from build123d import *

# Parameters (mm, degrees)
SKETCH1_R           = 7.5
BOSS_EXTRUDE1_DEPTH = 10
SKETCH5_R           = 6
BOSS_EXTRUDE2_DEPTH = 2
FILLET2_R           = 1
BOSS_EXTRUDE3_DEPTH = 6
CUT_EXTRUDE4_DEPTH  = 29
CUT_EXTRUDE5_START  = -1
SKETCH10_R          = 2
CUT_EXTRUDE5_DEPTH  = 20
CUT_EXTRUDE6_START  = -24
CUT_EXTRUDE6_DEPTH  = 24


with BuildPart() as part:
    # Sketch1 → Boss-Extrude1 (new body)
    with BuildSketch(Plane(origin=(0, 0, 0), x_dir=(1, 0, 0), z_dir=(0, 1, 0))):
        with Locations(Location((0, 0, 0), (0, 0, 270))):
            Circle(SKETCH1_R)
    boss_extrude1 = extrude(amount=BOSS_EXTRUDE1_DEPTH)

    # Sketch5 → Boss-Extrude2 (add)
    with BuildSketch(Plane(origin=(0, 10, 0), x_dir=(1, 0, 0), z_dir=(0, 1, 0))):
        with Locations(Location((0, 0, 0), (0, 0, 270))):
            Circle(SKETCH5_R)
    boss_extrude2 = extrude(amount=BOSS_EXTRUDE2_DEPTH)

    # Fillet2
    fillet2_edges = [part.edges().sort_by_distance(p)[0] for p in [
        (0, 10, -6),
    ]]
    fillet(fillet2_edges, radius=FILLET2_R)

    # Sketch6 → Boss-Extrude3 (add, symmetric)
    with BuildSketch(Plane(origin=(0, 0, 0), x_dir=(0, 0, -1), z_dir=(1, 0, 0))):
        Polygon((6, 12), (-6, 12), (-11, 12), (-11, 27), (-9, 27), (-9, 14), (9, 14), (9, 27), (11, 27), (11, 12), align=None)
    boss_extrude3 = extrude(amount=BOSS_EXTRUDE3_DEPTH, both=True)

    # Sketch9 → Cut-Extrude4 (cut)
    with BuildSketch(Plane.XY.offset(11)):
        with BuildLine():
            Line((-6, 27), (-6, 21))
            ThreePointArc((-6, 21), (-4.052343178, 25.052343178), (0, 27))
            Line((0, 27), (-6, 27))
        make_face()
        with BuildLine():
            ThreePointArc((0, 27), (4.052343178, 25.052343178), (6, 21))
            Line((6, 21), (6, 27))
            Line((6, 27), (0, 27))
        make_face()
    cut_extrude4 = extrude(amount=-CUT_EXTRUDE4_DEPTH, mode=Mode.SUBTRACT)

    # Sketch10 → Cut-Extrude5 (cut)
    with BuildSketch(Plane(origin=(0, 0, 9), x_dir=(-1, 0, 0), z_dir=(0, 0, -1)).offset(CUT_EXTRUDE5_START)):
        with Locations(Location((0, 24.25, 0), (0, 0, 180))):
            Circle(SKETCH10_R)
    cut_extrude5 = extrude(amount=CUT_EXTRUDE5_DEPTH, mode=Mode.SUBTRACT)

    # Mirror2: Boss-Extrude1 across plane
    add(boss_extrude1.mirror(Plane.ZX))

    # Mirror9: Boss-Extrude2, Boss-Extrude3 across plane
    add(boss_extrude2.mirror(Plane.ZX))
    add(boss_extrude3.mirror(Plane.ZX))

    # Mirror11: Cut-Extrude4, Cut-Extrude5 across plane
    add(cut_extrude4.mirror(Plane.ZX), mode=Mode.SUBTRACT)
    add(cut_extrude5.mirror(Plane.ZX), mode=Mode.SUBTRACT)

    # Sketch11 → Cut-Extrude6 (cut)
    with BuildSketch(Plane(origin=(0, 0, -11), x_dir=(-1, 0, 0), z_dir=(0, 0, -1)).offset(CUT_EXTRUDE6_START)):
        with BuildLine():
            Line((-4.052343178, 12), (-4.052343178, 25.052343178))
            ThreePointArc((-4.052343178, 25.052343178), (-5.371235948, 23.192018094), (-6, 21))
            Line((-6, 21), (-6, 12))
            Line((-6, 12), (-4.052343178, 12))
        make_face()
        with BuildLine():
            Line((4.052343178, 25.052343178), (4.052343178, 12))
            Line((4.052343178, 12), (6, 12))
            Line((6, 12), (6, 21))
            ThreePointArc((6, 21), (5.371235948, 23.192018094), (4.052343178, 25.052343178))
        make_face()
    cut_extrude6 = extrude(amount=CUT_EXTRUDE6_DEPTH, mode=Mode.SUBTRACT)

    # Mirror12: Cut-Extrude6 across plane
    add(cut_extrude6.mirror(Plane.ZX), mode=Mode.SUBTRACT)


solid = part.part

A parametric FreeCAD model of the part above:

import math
import FreeCAD as App
import Part
import Sketcher
Q = App.Units.Quantity


def edges_at(feature, points):
    """Names of the edges that pass closest to the given points."""
    edges = feature.Shape.Edges
    near = lambda p: min(range(len(edges)), key=lambda i: edges[i].distToShape(Part.Vertex(*p))[0])
    return sorted({f"Edge{near(p) + 1}" for p in points})

doc = App.newDocument("Part")
body = doc.addObject("PartDesign::Body", "Body")

sketch1 = doc.addObject("Sketcher::SketchObject", "Sketch")
body.addObject(sketch1)
sketch1.AttachmentSupport = (doc.XZ_Plane, [""])
sketch1.MapMode = "FlatFace"
sketch1.addGeometry(Part.Circle(App.Vector(0, 0, 0), App.Vector(0, 0, 1), 8), False)
sketch1.addConstraint([
    Sketcher.Constraint("Coincident", 0, 3, -1, 1),
    Sketcher.Constraint("Diameter", 0, Q("15 mm")),
])
pad1 = doc.addObject("PartDesign::Pad", "Pad")
body.addObject(pad1)
pad1.Profile = sketch1
pad1.Length = 10
pad1.Reversed = True

sketch2 = doc.addObject("Sketcher::SketchObject", "Sketch001")
body.addObject(sketch2)
sketch2.AttachmentSupport = (doc.XZ_Plane, [""])
sketch2.MapMode = "FlatFace"
sketch2.AttachmentOffset = App.Placement(App.Vector(0, 0, -10), App.Rotation())
sketch2.addGeometry(Part.Circle(App.Vector(0, 0, 0), App.Vector(0, 0, 1), 6), False)
sketch2.addConstraint([
    Sketcher.Constraint("Coincident", 0, 3, -1, 1),
    Sketcher.Constraint("Diameter", 0, Q("12 mm")),
])
pad2 = doc.addObject("PartDesign::Pad", "Pad001")
body.addObject(pad2)
pad2.Profile = sketch2
pad2.Length = 2
pad2.Reversed = True
doc.recompute()

fillet = doc.addObject("PartDesign::Fillet", "Fillet")
body.addObject(fillet)
fillet.Base = (pad2, edges_at(pad2, [(0, 10, -6)]))
fillet.Radius = 1

sketch3 = doc.addObject("Sketcher::SketchObject", "Sketch002")
body.addObject(sketch3)
sketch3.AttachmentSupport = (doc.YZ_Plane, [""])
sketch3.MapMode = "FlatFace"
sketch3.addGeometry([
    Part.LineSegment(App.Vector(12, 11, 0), App.Vector(12, -11, 0)),
    Part.LineSegment(App.Vector(12, -11, 0), App.Vector(27, -11, 0)),
    Part.LineSegment(App.Vector(27, -11, 0), App.Vector(27, -9, 0)),
    Part.LineSegment(App.Vector(27, -9, 0), App.Vector(14, -9, 0)),
    Part.LineSegment(App.Vector(14, -9, 0), App.Vector(14, 9, 0)),
    Part.LineSegment(App.Vector(14, 9, 0), App.Vector(27, 9, 0)),
    Part.LineSegment(App.Vector(27, 9, 0), App.Vector(27, 11, 0)),
    Part.LineSegment(App.Vector(27, 11, 0), App.Vector(12, 11, 0)),
], False)
sketch3.addConstraint([
    Sketcher.Constraint("Coincident", 0, 2, 1, 1),
    Sketcher.Constraint("Coincident", 1, 2, 2, 1),
    Sketcher.Constraint("Coincident", 2, 2, 3, 1),
    Sketcher.Constraint("Coincident", 3, 2, 4, 1),
    Sketcher.Constraint("Coincident", 4, 2, 5, 1),
    Sketcher.Constraint("Coincident", 5, 2, 6, 1),
    Sketcher.Constraint("Coincident", 6, 2, 7, 1),
    Sketcher.Constraint("Coincident", 7, 2, 0, 1),
    Sketcher.Constraint("Vertical", 0),
    Sketcher.Constraint("Horizontal", 1),
    Sketcher.Constraint("Vertical", 2),
    Sketcher.Constraint("Horizontal", 3),
    Sketcher.Constraint("Vertical", 4),
    Sketcher.Constraint("Horizontal", 5),
    Sketcher.Constraint("Vertical", 6),
    Sketcher.Constraint("Horizontal", 7),
    Sketcher.Constraint("Symmetric", 2, 2, 5, 2, -1),
    Sketcher.Constraint("Equal", 2, 6),
    Sketcher.Constraint("DistanceX", 1, 1, 1, 2, Q("15 mm")),
    Sketcher.Constraint("DistanceX", 3, 2, 3, 1, Q("13 mm")),
    Sketcher.Constraint("DistanceY", 0, 2, 0, 1, Q("22 mm")),
    Sketcher.Constraint("DistanceY", 2, 1, 2, 2, Q("2 mm")),
    Sketcher.Constraint("DistanceX", -1, 1, 0, 2, Q("12 mm")),
])
pad3 = doc.addObject("PartDesign::Pad", "Pad002")
body.addObject(pad3)
pad3.Profile = sketch3
pad3.Length = 12
pad3.Midplane = True

sketch4 = doc.addObject("Sketcher::SketchObject", "Sketch003")
body.addObject(sketch4)
sketch4.AttachmentSupport = (doc.XY_Plane, [""])
sketch4.MapMode = "FlatFace"
sketch4.AttachmentOffset = App.Placement(App.Vector(0, 0, 11), App.Rotation())
sketch4.addGeometry([
    Part.LineSegment(App.Vector(-6, 27, 0), App.Vector(-6, 21, 0)),
    Part.ArcOfCircle(Part.Circle(App.Vector(1, 20, 0), App.Vector(0, 0, 1), 7), math.radians(96), math.radians(174)),
    Part.LineSegment(App.Vector(0, 27, 0), App.Vector(-6, 27, 0)),
    Part.ArcOfCircle(Part.Circle(App.Vector(-1, 20, 0), App.Vector(0, 0, 1), 7), math.radians(6), math.radians(84)),
    Part.LineSegment(App.Vector(6, 21, 0), App.Vector(6, 27, 0)),
    Part.LineSegment(App.Vector(6, 27, 0), App.Vector(0, 27, 0)),
], False)
sketch4.addConstraint([
    Sketcher.Constraint("Coincident", 0, 2, 1, 2),
    Sketcher.Constraint("Coincident", 1, 1, 2, 1),
    Sketcher.Constraint("Coincident", 2, 2, 0, 1),
    Sketcher.Constraint("Coincident", 3, 1, 4, 1),
    Sketcher.Constraint("Coincident", 4, 2, 5, 1),
    Sketcher.Constraint("Coincident", 5, 2, 3, 2),
    Sketcher.Constraint("Vertical", 0),
    Sketcher.Constraint("Horizontal", 2),
    Sketcher.Constraint("Vertical", 4),
    Sketcher.Constraint("Horizontal", 5),
    Sketcher.Constraint("Coincident", 5, 2, 1, 1),
    Sketcher.Constraint("Equal", 1, 3),
    Sketcher.Constraint("Symmetric", 1, 3, 3, 3, -2),
    Sketcher.Constraint("Horizontal", 0, 2, 3, 1),
    Sketcher.Constraint("Equal", 5, 0),
    Sketcher.Constraint("DistanceX", 2, 2, 2, 1, Q("6 mm")),
    Sketcher.Constraint("DistanceY", -1, 1, 0, 2, Q("21 mm")),
    Sketcher.Constraint("DistanceX", 3, 3, 1, 3, Q("1.5 mm")),
])
pocket1 = doc.addObject("PartDesign::Pocket", "Pocket")
body.addObject(pocket1)
pocket1.Profile = sketch4
pocket1.Length = 29

sketch5 = doc.addObject("Sketcher::SketchObject", "Sketch004")
body.addObject(sketch5)
sketch5.AttachmentSupport = (doc.XY_Plane, [""])
sketch5.MapMode = "FlatFace"
sketch5.AttachmentOffset = App.Placement(App.Vector(0, 0, 10), App.Rotation())
sketch5.addGeometry(Part.Circle(App.Vector(0, 24.2, 0), App.Vector(0, 0, 1), 2), False)
sketch5.addConstraint([
    Sketcher.Constraint("PointOnObject", 0, 3, -2),
    Sketcher.Constraint("Diameter", 0, Q("4 mm")),
    Sketcher.Constraint("DistanceY", -1, 1, 0, 3, Q("24.25 mm")),
])
pocket2 = doc.addObject("PartDesign::Pocket", "Pocket001")
body.addObject(pocket2)
pocket2.Profile = sketch5
pocket2.Length = 20
doc.recompute()

mirrored = doc.addObject("PartDesign::Mirrored", "Mirrored")
body.addObject(mirrored)
mirrored.Originals = [pad1]
mirrored.MirrorPlane = (doc.XZ_Plane, [""])
body.Tip = mirrored
doc.recompute()

mirrored2 = doc.addObject("PartDesign::Mirrored", "Mirrored001")
body.addObject(mirrored2)
mirrored2.Originals = [pad2, pad3]
mirrored2.MirrorPlane = (doc.XZ_Plane, [""])
body.Tip = mirrored2
doc.recompute()

mirrored3 = doc.addObject("PartDesign::Mirrored", "Mirrored002")
body.addObject(mirrored3)
mirrored3.Originals = [pocket1, pocket2]
mirrored3.MirrorPlane = (doc.XZ_Plane, [""])
body.Tip = mirrored3

sketch6 = doc.addObject("Sketcher::SketchObject", "Sketch005")
body.addObject(sketch6)
sketch6.AttachmentSupport = (doc.XY_Plane, [""])
sketch6.MapMode = "FlatFace"
sketch6.AttachmentOffset = App.Placement(App.Vector(0, 0, 13), App.Rotation())
sketch6.addGeometry([
    Part.LineSegment(App.Vector(4.1, 12, 0), App.Vector(4.1, 25.1, 0)),
    Part.ArcOfCircle(Part.Circle(App.Vector(-0.8, 20.2, 0), App.Vector(0, 0, 1), 6.8), math.radians(6), math.radians(45)),
    Part.LineSegment(App.Vector(6, 21, 0), App.Vector(6, 12, 0)),
    Part.LineSegment(App.Vector(6, 12, 0), App.Vector(4.1, 12, 0)),
    Part.LineSegment(App.Vector(-4.1, 25.1, 0), App.Vector(-4.1, 12, 0)),
    Part.LineSegment(App.Vector(-4.1, 12, 0), App.Vector(-6, 12, 0)),
    Part.LineSegment(App.Vector(-6, 12, 0), App.Vector(-6, 21, 0)),
    Part.ArcOfCircle(Part.Circle(App.Vector(0.8, 20.2, 0), App.Vector(0, 0, 1), 6.8), math.radians(135), math.radians(174)),
], False)
sketch6.addConstraint([
    Sketcher.Constraint("Coincident", 0, 2, 1, 2),
    Sketcher.Constraint("Coincident", 1, 1, 2, 1),
    Sketcher.Constraint("Coincident", 2, 2, 3, 1),
    Sketcher.Constraint("Coincident", 3, 2, 0, 1),
    Sketcher.Constraint("Coincident", 4, 2, 5, 1),
    Sketcher.Constraint("Coincident", 5, 2, 6, 1),
    Sketcher.Constraint("Coincident", 6, 2, 7, 2),
    Sketcher.Constraint("Coincident", 7, 1, 4, 1),
    Sketcher.Constraint("Vertical", 0),
    Sketcher.Constraint("Vertical", 2),
    Sketcher.Constraint("Horizontal", 3),
    Sketcher.Constraint("Vertical", 4),
    Sketcher.Constraint("Horizontal", 5),
    Sketcher.Constraint("Vertical", 6),
    Sketcher.Constraint("Equal", 1, 7),
    Sketcher.Constraint("Symmetric", 1, 3, 7, 3, -2),
    Sketcher.Constraint("Symmetric", 3, 2, 4, 2, -2),
    Sketcher.Constraint("Horizontal", 1, 1, 6, 2),
    Sketcher.Constraint("DistanceY", 2, 2, 2, 1, Q("9 mm")),
    Sketcher.Constraint("DistanceX", -1, 1, 1, 1, Q("6 mm")),
    Sketcher.Constraint("DistanceY", -1, 1, 1, 1, Q("21 mm")),
    Sketcher.Constraint("DistanceX", 1, 3, 7, 3, Q("1.5 mm")),
    Sketcher.Constraint("DistanceY", -1, 1, 1, 3, Q("20.25 mm")),
    Sketcher.Constraint("DistanceX", 3, 2, 3, 1, Q("1.947657 mm")),
])
pocket3 = doc.addObject("PartDesign::Pocket", "Pocket002")
body.addObject(pocket3)
pocket3.Profile = sketch6
pocket3.Length = 24
doc.recompute()

mirrored4 = doc.addObject("PartDesign::Mirrored", "Mirrored003")
body.addObject(mirrored4)
mirrored4.Originals = [pocket3]
mirrored4.MirrorPlane = (doc.XZ_Plane, [""])
body.Tip = mirrored4

doc.recompute()
